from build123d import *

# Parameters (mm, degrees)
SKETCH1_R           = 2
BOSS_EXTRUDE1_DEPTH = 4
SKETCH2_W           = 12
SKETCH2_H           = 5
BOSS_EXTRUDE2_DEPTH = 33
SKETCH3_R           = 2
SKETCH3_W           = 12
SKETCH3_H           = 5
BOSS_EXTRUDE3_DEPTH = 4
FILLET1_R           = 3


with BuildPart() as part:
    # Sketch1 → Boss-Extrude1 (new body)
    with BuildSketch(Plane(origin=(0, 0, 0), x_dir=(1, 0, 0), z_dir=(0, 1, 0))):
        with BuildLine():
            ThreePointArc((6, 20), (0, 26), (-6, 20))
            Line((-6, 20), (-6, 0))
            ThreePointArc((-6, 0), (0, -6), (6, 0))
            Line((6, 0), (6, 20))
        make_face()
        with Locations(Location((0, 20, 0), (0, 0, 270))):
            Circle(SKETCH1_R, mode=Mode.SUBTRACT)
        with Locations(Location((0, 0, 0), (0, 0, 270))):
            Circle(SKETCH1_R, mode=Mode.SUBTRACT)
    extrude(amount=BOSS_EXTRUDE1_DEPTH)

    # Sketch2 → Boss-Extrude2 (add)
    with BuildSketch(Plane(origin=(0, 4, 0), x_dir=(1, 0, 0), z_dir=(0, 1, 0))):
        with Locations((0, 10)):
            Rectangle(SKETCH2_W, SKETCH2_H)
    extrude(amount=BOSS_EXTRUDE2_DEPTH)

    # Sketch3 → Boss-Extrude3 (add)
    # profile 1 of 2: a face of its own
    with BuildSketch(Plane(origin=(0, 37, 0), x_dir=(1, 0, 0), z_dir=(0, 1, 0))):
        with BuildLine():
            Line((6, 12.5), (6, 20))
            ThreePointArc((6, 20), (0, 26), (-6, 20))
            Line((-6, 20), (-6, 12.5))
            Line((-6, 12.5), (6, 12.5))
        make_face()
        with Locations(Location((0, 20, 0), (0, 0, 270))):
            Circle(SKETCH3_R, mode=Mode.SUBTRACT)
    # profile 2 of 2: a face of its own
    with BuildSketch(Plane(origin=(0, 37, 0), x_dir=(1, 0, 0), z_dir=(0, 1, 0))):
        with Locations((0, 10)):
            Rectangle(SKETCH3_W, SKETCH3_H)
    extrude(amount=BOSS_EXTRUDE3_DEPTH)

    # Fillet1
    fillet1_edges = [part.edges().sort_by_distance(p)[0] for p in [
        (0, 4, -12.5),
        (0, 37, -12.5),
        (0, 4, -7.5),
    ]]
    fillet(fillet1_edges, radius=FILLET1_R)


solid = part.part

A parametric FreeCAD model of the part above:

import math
import FreeCAD as App
import Part
import Sketcher

V = App.Vector
Q = App.Units.Quantity


def edges_at(feature, points):
    """Names of the edges that pass closest to the given points."""
    edges = feature.Shape.Edges
    near = lambda p: min(range(len(edges)), key=lambda i: edges[i].distToShape(Part.Vertex(*p))[0])
    return sorted({f"Edge{near(p) + 1}" for p in points})


def add_polygon(sketch, points):
    """Adds a closed chain of lines whose ends are joined by coincident constraints."""
    first, n = sketch.GeometryCount, len(points)
    for a, b in zip(points, points[1:] + points[:1]):
        sketch.addGeometry(Part.LineSegment(App.Vector(*a, 0), App.Vector(*b, 0)), False)
    for i in range(n):
        sketch.addConstraint(Sketcher.Constraint("Coincident", first + i, 2, first + (i + 1) % n, 1))

doc = App.newDocument("Part")
body = doc.addObject("PartDesign::Body", "Body")

# Sketch on XZ plane
sketch1 = doc.addObject("Sketcher::SketchObject", "Sketch")
body.addObject(sketch1)
sketch1.AttachmentSupport = (doc.XZ_Plane, [""])
sketch1.MapMode = "FlatFace"
sketch1.addGeometry(Part.ArcOfCircle(Part.Circle(V(0, -20, 0), V(0, 0, 1), 6), math.radians(180), math.radians(360)), False)
sketch1.addGeometry(Part.LineSegment(V(-6, -20, 0), V(-6, 0, 0)), False)
sketch1.addGeometry(Part.ArcOfCircle(Part.Circle(V(0, 0, 0), V(0, 0, 1), 6), math.radians(0), math.radians(180)), False)
sketch1.addGeometry(Part.LineSegment(V(6, 0, 0), V(6, -20, 0)), False)
sketch1.addGeometry(Part.Circle(V(0, 0, 0), V(0, 0, 1), 2), False)
sketch1.addGeometry(Part.Circle(V(0, -20, 0), V(0, 0, 1), 2), False)
sketch1.addConstraint(Sketcher.Constraint("Tangent", 0, 1, 1, 1))
sketch1.addConstraint(Sketcher.Constraint("Tangent", 1, 2, 2, 2))
sketch1.addConstraint(Sketcher.Constraint("Tangent", 2, 1, 3, 1))
sketch1.addConstraint(Sketcher.Constraint("Tangent", 3, 2, 0, 2))
sketch1.addConstraint(Sketcher.Constraint("Vertical", 1))
sketch1.addConstraint(Sketcher.Constraint("Vertical", 3))
sketch1.addConstraint(Sketcher.Constraint("Coincident", 2, 3, -1, 1))
sketch1.addConstraint(Sketcher.Constraint("Coincident", 4, 3, -1, 1))
sketch1.addConstraint(Sketcher.Constraint("Coincident", 5, 3, 0, 3))
sketch1.addConstraint(Sketcher.Constraint("Equal", 4, 5))
sketch1.addConstraint(Sketcher.Constraint("Diameter", 4, Q("4 mm")))
sketch1.addConstraint(Sketcher.Constraint("Radius", 0, Q("6 mm")))
sketch1.addConstraint(Sketcher.Constraint("DistanceY", 1, 1, 1, 2, Q("20 mm")))
pad1 = doc.addObject("PartDesign::Pad", "Pad")
body.addObject(pad1)
pad1.Profile = sketch1
pad1.Length = 4
pad1.Reversed = True

# Sketch on XZ plane
sketch2 = doc.addObject("Sketcher::SketchObject", "Sketch001")
body.addObject(sketch2)
sketch2.AttachmentSupport = (doc.XZ_Plane, [""])
sketch2.MapMode = "FlatFace"
sketch2.AttachmentOffset = App.Placement(V(0, 0, -4), App.Rotation())
add_polygon(sketch2, [(-6, -12.5), (-6, -7.5), (6, -7.5), (6, -12.5)])  # lines 0-3
sketch2.addConstraint(Sketcher.Constraint("Vertical", 0))
sketch2.addConstraint(Sketcher.Constraint("Horizontal", 1))
sketch2.addConstraint(Sketcher.Constraint("Vertical", 2))
sketch2.addConstraint(Sketcher.Constraint("Horizontal", 3))
sketch2.addConstraint(Sketcher.Constraint("DistanceX", 1, 1, 1, 2, Q("12 mm")))
sketch2.addConstraint(Sketcher.Constraint("DistanceY", 0, 1, 0, 2, Q("5 mm")))
sketch2.addConstraint(Sketcher.Constraint("DistanceX", 0, 2, -1, 1, Q("6 mm")))
sketch2.addConstraint(Sketcher.Constraint("DistanceY", 0, 2, -1, 1, Q("7.5 mm")))
pad2 = doc.addObject("PartDesign::Pad", "Pad001")
body.addObject(pad2)
pad2.Profile = sketch2
pad2.Length = 33
pad2.Reversed = True

# Sketch on XZ plane
sketch3 = doc.addObject("Sketcher::SketchObject", "Sketch002")
body.addObject(sketch3)
sketch3.AttachmentSupport = (doc.XZ_Plane, [""])
sketch3.MapMode = "FlatFace"
sketch3.AttachmentOffset = App.Placement(V(0, 0, -37), App.Rotation())
sketch3.addGeometry(Part.ArcOfCircle(Part.Circle(V(0, -20, 0), V(0, 0, 1), 6), math.radians(180), math.radians(360)), False)
sketch3.addGeometry(Part.LineSegment(V(-6, -20, 0), V(-6, -7.5, 0)), False)
sketch3.addGeometry(Part.LineSegment(V(-6, -7.5, 0), V(6, -7.5, 0)), False)
sketch3.addGeometry(Part.LineSegment(V(6, -7.5, 0), V(6, -20, 0)), False)
sketch3.addGeometry(Part.Circle(V(0, -20, 0), V(0, 0, 1), 2), False)
sketch3.addConstraint(Sketcher.Constraint("Tangent", 0, 1, 1, 1))
sketch3.addConstraint(Sketcher.Constraint("Coincident", 1, 2, 2, 1))
sketch3.addConstraint(Sketcher.Constraint("Coincident", 2, 2, 3, 1))
sketch3.addConstraint(Sketcher.Constraint("Tangent", 3, 2, 0, 2))
sketch3.addConstraint(Sketcher.Constraint("Vertical", 1))
sketch3.addConstraint(Sketcher.Constraint("Horizontal", 2))
sketch3.addConstraint(Sketcher.Constraint("Vertical", 3))
sketch3.addConstraint(Sketcher.Constraint("Coincident", 4, 3, 0, 3))
sketch3.addConstraint(Sketcher.Constraint("PointOnObject", 0, 3, -2))
sketch3.addConstraint(Sketcher.Constraint("Diameter", 4, Q("4 mm")))
sketch3.addConstraint(Sketcher.Constraint("Radius", 0, Q("6 mm")))
sketch3.addConstraint(Sketcher.Constraint("DistanceY", 1, 1, 1, 2, Q("12.5 mm")))
sketch3.addConstraint(Sketcher.Constraint("DistanceY", 0, 3, -1, 1, Q("20 mm")))
pad3 = doc.addObject("PartDesign::Pad", "Pad002")
body.addObject(pad3)
pad3.Profile = sketch3
pad3.Length = 4
pad3.Reversed = True
doc.recompute()

fillet = doc.addObject("PartDesign::Fillet", "Fillet")
body.addObject(fillet)
fillet.Base = (pad3, edges_at(pad3, [(0, 4, -12.5), (0, 37, -12.5), (0, 4, -7.5)]))
fillet.Radius = 3

doc.recompute()
